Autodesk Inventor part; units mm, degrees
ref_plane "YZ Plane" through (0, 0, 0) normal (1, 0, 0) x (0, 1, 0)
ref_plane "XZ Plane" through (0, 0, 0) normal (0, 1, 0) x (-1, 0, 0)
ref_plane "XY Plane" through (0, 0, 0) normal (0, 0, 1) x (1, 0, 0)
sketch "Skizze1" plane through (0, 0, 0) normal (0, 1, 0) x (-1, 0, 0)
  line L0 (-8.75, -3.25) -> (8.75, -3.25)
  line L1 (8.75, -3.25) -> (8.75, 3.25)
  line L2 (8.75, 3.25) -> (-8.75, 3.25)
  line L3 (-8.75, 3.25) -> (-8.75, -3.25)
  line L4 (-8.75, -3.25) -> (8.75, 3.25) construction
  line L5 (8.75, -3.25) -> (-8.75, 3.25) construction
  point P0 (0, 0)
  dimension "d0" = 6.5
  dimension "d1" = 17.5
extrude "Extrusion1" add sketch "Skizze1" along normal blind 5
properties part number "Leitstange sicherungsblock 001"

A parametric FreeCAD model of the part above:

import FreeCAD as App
import Part
import Sketcher
from FreeCAD import Vector


def add_polygon(sketch, points):
    """Adds a closed chain of lines whose ends are joined by coincident constraints."""
    first, n = sketch.GeometryCount, len(points)
    for a, b in zip(points, points[1:] + points[:1]):
        sketch.addGeometry(Part.LineSegment(App.Vector(*a, 0), App.Vector(*b, 0)), False)
    for i in range(n):
        sketch.addConstraint(Sketcher.Constraint("Coincident", first + i, 2, first + (i + 1) % n, 1))

doc = App.newDocument("Part")
body = doc.addObject("PartDesign::Body", "Body")

# Sketch on XZ plane
sketch1 = doc.addObject("Sketcher::SketchObject", "Sketch")
body.addObject(sketch1)
sketch1.AttachmentSupport = (doc.XZ_Plane, [""])
sketch1.MapMode = "FlatFace"
add_polygon(sketch1, [(8.75, 3.25), (8.75, -3.25), (-8.75, -3.25), (-8.75, 3.25)])  # lines 0-3
sketch1.addConstraint(Sketcher.Constraint("Vertical", 0))
sketch1.addConstraint(Sketcher.Constraint("Horizontal", 1))
sketch1.addConstraint(Sketcher.Constraint("Vertical", 2))
sketch1.addConstraint(Sketcher.Constraint("Horizontal", 3))
sketch1.addConstraint(Sketcher.Constraint("Symmetric", 0, 2, 2, 2, -1, 1))
sketch1.addConstraint(Sketcher.Constraint("DistanceX", 1, 2, 1, 1, 17.5))
sketch1.addConstraint(Sketcher.Constraint("DistanceY", 0, 2, 0, 1, 6.5))
pad1 = doc.addObject("PartDesign::Pad", "Pad")
body.addObject(pad1)
pad1.Profile = sketch1
pad1.Length = 5
pad1.Reversed = True

doc.recompute()
